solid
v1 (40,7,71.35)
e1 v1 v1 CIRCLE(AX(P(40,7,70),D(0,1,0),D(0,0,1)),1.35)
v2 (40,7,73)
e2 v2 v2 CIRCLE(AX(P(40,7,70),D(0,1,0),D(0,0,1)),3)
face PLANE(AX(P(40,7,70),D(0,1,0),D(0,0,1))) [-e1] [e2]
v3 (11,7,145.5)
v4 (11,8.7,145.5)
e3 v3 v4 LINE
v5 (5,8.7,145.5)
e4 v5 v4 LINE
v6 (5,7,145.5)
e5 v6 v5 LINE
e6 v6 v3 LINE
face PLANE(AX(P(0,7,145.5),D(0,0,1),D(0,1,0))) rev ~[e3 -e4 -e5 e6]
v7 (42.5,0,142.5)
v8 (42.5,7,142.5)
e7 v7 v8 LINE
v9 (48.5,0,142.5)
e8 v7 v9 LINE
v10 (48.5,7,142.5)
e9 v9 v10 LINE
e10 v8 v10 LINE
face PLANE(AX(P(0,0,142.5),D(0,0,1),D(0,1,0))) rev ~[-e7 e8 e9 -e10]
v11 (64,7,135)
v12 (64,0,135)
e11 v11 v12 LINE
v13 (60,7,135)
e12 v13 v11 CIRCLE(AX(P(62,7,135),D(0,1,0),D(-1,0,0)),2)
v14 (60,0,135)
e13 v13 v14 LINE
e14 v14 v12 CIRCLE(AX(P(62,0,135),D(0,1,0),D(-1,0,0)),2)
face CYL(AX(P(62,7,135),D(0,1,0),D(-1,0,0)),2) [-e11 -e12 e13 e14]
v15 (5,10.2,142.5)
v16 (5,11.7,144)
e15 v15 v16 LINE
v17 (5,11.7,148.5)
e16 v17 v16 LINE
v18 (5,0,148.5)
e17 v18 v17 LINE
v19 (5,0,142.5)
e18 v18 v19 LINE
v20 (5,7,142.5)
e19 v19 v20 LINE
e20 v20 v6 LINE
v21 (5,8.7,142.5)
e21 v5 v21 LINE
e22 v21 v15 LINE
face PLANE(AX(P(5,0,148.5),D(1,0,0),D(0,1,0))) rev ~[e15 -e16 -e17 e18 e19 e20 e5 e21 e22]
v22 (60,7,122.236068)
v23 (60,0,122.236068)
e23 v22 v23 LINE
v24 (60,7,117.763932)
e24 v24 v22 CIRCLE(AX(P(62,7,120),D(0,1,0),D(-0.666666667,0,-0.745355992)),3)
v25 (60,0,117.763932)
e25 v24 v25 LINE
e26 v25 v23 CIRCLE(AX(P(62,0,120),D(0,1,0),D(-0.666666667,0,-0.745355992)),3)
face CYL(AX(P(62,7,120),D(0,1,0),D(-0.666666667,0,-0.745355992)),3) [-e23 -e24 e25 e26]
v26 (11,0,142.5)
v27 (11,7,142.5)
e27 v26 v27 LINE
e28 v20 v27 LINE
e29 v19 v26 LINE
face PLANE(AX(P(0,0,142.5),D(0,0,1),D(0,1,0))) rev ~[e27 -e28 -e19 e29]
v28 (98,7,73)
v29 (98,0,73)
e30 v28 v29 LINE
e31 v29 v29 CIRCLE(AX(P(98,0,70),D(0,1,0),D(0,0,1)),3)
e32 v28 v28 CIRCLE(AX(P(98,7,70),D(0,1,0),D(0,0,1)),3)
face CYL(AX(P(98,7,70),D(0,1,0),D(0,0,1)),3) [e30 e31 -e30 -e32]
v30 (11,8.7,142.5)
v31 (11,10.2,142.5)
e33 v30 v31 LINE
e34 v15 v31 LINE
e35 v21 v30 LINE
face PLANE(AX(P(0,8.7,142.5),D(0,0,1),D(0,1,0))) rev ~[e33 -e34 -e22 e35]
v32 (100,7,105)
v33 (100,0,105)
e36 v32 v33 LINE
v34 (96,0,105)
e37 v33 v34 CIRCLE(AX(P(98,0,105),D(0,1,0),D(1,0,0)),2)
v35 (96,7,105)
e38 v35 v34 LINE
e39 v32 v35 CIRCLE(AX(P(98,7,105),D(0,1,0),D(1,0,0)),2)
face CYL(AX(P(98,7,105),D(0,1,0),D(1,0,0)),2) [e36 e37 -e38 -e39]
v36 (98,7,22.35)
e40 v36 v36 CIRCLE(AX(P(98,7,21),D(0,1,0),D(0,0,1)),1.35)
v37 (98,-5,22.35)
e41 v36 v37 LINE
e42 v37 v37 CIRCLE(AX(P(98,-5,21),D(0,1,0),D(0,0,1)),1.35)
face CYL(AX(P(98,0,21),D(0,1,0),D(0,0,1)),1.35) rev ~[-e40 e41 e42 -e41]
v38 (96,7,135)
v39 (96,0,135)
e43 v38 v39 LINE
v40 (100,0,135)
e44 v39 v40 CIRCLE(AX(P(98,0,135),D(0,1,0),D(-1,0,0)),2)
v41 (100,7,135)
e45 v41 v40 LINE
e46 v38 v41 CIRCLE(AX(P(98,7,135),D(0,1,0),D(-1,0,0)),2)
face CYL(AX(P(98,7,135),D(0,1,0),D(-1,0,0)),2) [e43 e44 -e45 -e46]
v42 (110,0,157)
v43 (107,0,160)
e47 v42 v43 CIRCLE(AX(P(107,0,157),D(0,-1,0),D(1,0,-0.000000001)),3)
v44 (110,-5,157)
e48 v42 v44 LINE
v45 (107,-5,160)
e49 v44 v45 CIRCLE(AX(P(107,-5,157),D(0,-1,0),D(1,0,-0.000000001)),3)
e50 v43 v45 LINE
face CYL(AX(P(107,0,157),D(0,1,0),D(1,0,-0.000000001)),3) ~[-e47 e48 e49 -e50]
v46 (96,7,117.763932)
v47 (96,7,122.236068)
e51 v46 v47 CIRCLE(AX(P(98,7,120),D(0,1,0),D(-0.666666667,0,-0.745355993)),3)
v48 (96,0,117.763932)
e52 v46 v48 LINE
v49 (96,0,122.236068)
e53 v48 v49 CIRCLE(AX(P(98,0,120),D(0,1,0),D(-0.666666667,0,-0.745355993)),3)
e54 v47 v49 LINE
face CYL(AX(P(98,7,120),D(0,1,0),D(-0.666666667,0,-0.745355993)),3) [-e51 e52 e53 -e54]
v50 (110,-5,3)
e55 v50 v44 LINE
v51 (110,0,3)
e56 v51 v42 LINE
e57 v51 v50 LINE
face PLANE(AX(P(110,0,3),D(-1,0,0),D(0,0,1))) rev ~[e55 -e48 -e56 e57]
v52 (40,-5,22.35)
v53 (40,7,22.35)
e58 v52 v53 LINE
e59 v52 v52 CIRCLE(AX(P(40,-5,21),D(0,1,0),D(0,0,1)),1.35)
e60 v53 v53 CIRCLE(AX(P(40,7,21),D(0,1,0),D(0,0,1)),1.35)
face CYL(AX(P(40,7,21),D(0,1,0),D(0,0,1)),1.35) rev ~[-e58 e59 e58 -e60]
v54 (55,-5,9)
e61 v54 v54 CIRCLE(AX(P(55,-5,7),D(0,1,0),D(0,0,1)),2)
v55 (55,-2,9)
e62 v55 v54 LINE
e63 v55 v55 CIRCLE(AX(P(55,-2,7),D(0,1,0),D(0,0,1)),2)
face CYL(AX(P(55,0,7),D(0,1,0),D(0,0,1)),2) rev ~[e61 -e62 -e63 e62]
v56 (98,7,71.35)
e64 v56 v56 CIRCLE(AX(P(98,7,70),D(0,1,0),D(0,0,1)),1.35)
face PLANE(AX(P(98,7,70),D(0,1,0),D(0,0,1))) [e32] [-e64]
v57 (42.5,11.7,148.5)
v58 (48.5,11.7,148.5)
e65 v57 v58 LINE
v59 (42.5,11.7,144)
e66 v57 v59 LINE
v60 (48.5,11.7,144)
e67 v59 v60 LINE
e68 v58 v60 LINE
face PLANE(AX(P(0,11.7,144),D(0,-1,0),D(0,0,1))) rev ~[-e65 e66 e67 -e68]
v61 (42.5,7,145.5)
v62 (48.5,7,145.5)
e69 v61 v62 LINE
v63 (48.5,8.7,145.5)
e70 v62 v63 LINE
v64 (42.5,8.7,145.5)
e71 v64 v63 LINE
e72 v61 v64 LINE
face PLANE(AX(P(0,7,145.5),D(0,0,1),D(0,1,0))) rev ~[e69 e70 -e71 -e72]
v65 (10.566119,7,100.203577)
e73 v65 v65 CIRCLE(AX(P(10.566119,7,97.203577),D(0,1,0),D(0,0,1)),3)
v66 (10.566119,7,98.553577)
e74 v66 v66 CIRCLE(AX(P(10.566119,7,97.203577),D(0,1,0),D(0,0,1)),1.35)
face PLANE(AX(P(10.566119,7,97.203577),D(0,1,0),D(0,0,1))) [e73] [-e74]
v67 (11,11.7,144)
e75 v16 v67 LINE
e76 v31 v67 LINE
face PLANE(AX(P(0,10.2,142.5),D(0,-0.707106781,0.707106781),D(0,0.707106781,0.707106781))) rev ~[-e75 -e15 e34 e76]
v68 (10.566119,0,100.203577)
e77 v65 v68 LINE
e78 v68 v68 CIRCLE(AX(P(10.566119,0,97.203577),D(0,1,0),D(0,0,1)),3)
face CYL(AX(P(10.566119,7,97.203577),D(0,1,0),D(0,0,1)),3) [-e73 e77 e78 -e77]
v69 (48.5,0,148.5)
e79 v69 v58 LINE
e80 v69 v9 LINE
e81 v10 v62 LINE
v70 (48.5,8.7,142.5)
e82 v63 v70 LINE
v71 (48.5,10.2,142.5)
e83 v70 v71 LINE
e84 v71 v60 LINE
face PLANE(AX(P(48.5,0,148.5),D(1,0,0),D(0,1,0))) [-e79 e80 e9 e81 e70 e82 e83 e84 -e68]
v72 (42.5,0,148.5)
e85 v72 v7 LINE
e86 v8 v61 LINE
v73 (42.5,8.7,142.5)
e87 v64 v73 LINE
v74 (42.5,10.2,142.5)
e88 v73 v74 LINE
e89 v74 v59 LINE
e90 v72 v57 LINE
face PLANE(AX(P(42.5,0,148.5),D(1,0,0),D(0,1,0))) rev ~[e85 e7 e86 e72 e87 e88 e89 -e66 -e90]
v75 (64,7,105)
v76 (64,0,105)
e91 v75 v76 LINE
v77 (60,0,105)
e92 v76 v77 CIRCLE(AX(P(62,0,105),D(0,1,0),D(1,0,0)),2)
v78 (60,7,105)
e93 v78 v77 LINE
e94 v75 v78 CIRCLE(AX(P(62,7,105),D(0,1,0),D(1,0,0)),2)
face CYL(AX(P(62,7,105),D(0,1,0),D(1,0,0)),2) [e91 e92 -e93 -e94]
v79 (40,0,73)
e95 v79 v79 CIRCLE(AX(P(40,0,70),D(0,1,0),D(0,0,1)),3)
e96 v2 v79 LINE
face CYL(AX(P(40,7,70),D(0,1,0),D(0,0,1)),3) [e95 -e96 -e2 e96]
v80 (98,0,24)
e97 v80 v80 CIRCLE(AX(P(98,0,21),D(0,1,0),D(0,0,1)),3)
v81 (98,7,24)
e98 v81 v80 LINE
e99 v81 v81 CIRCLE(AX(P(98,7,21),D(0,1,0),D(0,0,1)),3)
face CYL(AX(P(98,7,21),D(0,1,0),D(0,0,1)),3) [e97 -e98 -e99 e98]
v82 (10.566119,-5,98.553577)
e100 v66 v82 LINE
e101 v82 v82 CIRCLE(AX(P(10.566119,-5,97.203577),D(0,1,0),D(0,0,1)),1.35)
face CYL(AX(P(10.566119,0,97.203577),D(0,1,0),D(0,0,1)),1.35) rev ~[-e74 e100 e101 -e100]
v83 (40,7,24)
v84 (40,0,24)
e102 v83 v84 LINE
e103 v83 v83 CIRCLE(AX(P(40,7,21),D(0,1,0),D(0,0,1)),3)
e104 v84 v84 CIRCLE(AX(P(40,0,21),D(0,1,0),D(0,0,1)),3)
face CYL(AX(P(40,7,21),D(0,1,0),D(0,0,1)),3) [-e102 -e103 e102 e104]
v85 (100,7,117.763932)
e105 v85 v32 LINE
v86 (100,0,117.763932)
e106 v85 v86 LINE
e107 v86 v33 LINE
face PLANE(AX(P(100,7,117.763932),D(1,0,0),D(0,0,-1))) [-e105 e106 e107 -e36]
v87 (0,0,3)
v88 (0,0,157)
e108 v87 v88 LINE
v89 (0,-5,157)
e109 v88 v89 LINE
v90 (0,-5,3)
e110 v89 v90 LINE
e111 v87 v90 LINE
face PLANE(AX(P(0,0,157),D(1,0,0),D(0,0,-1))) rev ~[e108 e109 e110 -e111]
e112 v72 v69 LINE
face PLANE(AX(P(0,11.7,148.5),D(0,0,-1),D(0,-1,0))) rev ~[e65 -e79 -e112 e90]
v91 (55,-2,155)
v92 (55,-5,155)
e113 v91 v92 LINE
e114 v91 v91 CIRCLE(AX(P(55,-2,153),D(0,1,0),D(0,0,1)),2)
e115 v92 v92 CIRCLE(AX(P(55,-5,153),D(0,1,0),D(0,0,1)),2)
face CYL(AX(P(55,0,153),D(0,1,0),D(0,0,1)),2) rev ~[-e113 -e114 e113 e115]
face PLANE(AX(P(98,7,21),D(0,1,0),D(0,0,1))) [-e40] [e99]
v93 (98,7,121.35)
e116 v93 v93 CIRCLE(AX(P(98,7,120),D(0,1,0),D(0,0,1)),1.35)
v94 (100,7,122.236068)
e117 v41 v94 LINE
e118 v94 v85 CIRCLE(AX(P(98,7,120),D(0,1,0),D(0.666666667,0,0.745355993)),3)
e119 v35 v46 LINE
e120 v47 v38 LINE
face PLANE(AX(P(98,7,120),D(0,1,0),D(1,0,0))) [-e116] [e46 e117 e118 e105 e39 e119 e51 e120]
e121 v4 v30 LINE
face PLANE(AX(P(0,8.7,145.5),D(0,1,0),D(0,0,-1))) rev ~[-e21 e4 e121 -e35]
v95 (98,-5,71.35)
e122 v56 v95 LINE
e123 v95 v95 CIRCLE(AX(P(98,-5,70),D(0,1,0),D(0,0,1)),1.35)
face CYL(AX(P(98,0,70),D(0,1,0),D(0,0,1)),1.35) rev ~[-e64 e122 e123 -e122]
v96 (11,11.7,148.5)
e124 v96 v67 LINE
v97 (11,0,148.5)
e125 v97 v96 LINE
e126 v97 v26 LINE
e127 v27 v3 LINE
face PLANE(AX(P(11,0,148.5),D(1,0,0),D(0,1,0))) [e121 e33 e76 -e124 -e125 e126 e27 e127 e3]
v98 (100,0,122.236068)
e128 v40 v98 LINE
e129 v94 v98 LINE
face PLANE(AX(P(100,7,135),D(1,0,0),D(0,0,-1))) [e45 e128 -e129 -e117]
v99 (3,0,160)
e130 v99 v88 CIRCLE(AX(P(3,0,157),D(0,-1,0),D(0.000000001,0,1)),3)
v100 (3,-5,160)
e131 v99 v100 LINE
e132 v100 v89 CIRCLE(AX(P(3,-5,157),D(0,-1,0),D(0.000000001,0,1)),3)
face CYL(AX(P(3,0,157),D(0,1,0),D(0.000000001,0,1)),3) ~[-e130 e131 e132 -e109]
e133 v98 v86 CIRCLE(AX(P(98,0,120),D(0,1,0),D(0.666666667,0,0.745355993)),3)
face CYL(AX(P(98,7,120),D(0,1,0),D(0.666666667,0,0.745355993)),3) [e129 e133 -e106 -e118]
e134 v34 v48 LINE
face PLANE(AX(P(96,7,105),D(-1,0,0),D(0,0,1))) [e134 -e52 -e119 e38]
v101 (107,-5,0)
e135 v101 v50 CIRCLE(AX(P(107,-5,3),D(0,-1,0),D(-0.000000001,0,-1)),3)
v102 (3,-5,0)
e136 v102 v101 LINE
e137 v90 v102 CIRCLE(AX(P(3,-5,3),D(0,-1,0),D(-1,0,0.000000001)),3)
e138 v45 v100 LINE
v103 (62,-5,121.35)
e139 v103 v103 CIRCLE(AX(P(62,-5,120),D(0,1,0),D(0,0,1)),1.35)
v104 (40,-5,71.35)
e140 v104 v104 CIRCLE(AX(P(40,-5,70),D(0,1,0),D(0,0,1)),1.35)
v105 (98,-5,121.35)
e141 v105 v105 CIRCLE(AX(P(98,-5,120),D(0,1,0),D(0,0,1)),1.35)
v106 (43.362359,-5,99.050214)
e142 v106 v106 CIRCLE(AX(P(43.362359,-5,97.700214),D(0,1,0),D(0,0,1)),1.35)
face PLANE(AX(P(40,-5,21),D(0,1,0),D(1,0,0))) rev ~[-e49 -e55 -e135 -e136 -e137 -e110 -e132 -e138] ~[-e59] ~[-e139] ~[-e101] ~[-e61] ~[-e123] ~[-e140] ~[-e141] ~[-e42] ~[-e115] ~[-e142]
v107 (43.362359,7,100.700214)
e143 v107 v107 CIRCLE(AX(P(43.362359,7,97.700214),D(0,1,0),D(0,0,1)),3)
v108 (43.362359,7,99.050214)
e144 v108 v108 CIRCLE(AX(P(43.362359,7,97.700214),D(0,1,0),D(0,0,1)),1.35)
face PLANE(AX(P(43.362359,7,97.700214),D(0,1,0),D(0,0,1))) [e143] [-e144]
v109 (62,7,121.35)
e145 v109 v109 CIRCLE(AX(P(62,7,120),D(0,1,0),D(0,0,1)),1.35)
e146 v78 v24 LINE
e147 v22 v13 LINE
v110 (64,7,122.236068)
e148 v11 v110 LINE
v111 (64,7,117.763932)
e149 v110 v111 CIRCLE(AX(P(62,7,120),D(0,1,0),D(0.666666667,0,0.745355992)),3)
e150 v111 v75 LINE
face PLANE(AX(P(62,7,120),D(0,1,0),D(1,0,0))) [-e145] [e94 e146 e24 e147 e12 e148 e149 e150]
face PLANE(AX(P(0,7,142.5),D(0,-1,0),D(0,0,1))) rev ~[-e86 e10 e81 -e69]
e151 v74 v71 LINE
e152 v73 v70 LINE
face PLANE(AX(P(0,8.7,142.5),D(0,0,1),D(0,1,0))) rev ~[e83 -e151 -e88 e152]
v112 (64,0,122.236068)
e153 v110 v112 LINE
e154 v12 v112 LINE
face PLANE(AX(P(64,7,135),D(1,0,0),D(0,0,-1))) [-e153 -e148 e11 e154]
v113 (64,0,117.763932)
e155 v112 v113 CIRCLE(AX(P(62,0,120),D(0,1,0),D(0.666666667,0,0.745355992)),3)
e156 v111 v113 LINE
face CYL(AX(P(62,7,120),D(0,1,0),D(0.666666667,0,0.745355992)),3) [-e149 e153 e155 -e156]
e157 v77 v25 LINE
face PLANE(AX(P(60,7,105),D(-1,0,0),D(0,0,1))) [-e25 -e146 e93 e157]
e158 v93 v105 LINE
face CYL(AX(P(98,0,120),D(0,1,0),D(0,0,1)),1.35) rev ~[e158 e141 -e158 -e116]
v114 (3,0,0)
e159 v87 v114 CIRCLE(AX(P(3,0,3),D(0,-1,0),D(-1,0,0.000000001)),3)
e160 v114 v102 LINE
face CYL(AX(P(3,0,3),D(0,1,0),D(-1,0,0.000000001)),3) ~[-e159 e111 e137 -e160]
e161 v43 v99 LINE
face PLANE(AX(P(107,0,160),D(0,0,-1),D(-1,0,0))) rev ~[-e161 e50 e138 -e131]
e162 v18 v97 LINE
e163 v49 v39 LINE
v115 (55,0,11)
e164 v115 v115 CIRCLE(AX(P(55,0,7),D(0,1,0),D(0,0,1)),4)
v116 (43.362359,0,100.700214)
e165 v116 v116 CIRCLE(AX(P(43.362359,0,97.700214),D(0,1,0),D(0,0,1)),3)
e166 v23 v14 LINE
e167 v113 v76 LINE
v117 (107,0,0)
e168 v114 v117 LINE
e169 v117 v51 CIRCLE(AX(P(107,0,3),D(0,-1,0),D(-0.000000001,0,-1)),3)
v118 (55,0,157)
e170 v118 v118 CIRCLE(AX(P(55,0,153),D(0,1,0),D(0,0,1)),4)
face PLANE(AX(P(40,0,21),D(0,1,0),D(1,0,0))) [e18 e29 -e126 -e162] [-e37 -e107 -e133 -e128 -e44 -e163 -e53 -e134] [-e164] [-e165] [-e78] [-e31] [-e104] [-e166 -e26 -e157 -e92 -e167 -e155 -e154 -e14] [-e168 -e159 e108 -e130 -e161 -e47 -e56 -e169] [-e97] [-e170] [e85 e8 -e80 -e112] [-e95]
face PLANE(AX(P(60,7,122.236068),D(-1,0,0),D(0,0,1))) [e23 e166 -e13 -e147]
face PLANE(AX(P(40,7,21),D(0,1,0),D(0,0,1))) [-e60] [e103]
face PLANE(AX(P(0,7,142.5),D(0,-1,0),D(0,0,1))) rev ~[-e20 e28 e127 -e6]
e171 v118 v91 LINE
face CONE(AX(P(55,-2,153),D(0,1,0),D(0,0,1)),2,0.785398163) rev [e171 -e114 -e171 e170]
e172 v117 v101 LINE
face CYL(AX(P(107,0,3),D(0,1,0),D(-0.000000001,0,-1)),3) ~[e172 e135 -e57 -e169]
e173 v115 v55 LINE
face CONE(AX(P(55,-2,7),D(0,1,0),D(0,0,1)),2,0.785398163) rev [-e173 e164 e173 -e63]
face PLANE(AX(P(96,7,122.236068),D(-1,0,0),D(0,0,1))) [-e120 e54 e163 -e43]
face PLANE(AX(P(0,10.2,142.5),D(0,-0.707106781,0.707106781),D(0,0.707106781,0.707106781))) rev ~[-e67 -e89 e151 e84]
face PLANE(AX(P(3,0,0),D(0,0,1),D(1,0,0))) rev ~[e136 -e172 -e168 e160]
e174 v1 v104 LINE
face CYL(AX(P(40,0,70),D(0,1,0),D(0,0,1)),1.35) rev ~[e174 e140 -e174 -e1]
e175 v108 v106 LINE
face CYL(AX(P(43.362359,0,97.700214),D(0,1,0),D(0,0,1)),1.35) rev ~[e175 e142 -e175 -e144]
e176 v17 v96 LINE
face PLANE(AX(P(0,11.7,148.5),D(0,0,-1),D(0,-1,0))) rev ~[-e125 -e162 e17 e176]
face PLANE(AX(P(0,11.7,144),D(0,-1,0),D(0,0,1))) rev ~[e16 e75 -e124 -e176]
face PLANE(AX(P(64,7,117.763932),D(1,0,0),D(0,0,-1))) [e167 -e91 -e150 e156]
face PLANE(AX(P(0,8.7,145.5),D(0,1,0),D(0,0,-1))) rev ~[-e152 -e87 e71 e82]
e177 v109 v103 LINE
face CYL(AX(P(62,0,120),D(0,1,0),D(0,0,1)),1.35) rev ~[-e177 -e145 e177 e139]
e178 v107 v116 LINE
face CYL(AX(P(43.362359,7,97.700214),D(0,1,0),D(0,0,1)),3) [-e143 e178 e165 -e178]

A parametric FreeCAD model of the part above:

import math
import FreeCAD as App
import Part
import Sketcher
from FreeCAD import Vector
Q = App.Units.Quantity


def edges_at(feature, points):
    """Names of the edges that pass closest to the given points."""
    edges = feature.Shape.Edges
    near = lambda p: min(range(len(edges)), key=lambda i: edges[i].distToShape(Part.Vertex(*p))[0])
    return sorted({f"Edge{near(p) + 1}" for p in points})

doc = App.newDocument("Part")
params = doc.addObject("Spreadsheet::Sheet", "Params")
for row, (alias, value) in enumerate([
    ("sketch1_diameter", "4 mm"),
    ("sketch1_radius", "3 mm"),
    ("sketch1_diameter2", "2.7 mm"),
    ("sketch1_width", "104 mm"),
    ("sketch1_height", "154 mm"),
    ("pad1_length", "5 mm"),
    ("sketch2_diameter", "6 mm"),
    ("sketch2_radius", "2 mm"),
    ("sketch2_diameter2", "2.7 mm"),
    ("pad2_length", "7 mm"),
    ("chamfer_size", "2 mm"),
    ("chamfer2_size", "2 mm"),
    ("sketch3_width", "7 mm"),
    ("sketch3_height", "6 mm"),
    ("sketch3_height2", "3 mm"),
    ("sketch3_width2", "11.7 mm"),
    ("sketch3_width3", "1.5 mm"),
    ("pad3_length", "50 mm"),
    ("sketch4_width", "5 mm"),
    ("sketch4_width2", "31.5 mm"),
    ("sketch4_width3", "1.5 mm"),
    ("sketch4_height", "11.7 mm"),
    ("pocket1_length", "12 mm"),
], start=1):
    params.set(f"A{row}", alias)
    params.set(f"B{row}", "=" + value)
    params.setAlias(f"B{row}", alias)

body = doc.addObject("PartDesign::Body", "Body")

# Sketch on XZ plane
sketch1 = body.newObject("Sketcher::SketchObject", "Sketch")
sketch1.AttachmentSupport = (doc.getObject("XZ_Plane"), [""])
sketch1.MapMode = "FlatFace"
sketch1.addGeometry([
    Part.LineSegment(Vector(107, 0, 0), Vector(3, 0, 0)),  # 0
    Part.ArcOfCircle(Part.Circle(Vector(3, 3, 0), Vector(0, 0, 1), 3), math.radians(180), math.radians(270)),  # 1
    Part.LineSegment(Vector(0, 3, 0), Vector(0, 157, 0)),  # 2
    Part.ArcOfCircle(Part.Circle(Vector(3, 157, 0), Vector(0, 0, 1), 3), math.radians(90), math.radians(180)),  # 3
    Part.LineSegment(Vector(3, 160, 0), Vector(107, 160, 0)),  # 4
    Part.ArcOfCircle(Part.Circle(Vector(107, 157, 0), Vector(0, 0, 1), 3), math.radians(0), math.radians(90)),  # 5
    Part.LineSegment(Vector(110, 157, 0), Vector(110, 3, 0)),  # 6
    Part.ArcOfCircle(Part.Circle(Vector(107, 3, 0), Vector(0, 0, 1), 3), math.radians(-90), math.radians(0)),  # 7
    Part.Circle(Vector(55, 153, 0), Vector(0, 0, 1), 2),  # 8
    Part.Circle(Vector(55, 7, 0), Vector(0, 0, 1), 2),  # 9
    Part.Circle(Vector(98, 120, 0), Vector(0, 0, 1), 1.4),  # 10
    Part.Circle(Vector(62, 120, 0), Vector(0, 0, 1), 1.4),  # 11
    Part.Circle(Vector(43.4, 97.7, 0), Vector(0, 0, 1), 1.4),  # 12
    Part.Circle(Vector(10.6, 97.2, 0), Vector(0, 0, 1), 1.4),  # 13
    Part.Circle(Vector(98, 70, 0), Vector(0, 0, 1), 1.4),  # 14
    Part.Circle(Vector(98, 21, 0), Vector(0, 0, 1), 1.4),  # 15
    Part.Circle(Vector(40, 70, 0), Vector(0, 0, 1), 1.4),  # 16
    Part.Circle(Vector(40, 21, 0), Vector(0, 0, 1), 1.4),  # 17
], False)
sketch1.addConstraint([
    Sketcher.Constraint("Tangent", 0, 2, 1, 2),
    Sketcher.Constraint("Tangent", 1, 1, 2, 1),
    Sketcher.Constraint("Tangent", 2, 2, 3, 2),
    Sketcher.Constraint("Tangent", 3, 1, 4, 1),
    Sketcher.Constraint("Tangent", 4, 2, 5, 2),
    Sketcher.Constraint("Tangent", 5, 1, 6, 1),
    Sketcher.Constraint("Tangent", 6, 2, 7, 2),
    Sketcher.Constraint("Tangent", 7, 1, 0, 1),
    Sketcher.Constraint("Horizontal", 0),
    Sketcher.Constraint("Vertical", 2),
    Sketcher.Constraint("Horizontal", 4),
    Sketcher.Constraint("Vertical", 6),
    Sketcher.Constraint("Equal", 1, 3),
    Sketcher.Constraint("Equal", 3, 5),
    Sketcher.Constraint("Equal", 5, 7),
    Sketcher.Constraint("Equal", 8, 9),
    Sketcher.Constraint("Equal", 10, 11),
    Sketcher.Constraint("Equal", 11, 12),
    Sketcher.Constraint("Equal", 12, 13),
    Sketcher.Constraint("Equal", 13, 14),
    Sketcher.Constraint("Equal", 14, 15),
    Sketcher.Constraint("Equal", 15, 16),
    Sketcher.Constraint("Equal", 16, 17),
    Sketcher.Constraint("PointOnObject", 0, 2, -1),
    Sketcher.Constraint("PointOnObject", 1, 1, -2),
    Sketcher.Constraint("Horizontal", 10, 3, 11, 3),
    Sketcher.Constraint("Horizontal", 14, 3, 16, 3),
    Sketcher.Constraint("Horizontal", 15, 3, 17, 3),
    Sketcher.Constraint("Vertical", 8, 3, 9, 3),
    Sketcher.Constraint("Vertical", 10, 3, 14, 3),
    Sketcher.Constraint("Vertical", 14, 3, 15, 3),
    Sketcher.Constraint("Vertical", 16, 3, 17, 3),
    Sketcher.Constraint("Diameter", 8, 4.0),
    Sketcher.Constraint("Radius", 1, 3.0),
    Sketcher.Constraint("Diameter", 10, 2.7),
    Sketcher.Constraint("DistanceX", 0, 2, 0, 1, 104.0),
    Sketcher.Constraint("DistanceY", 2, 1, 2, 2, 154.0),
    Sketcher.Constraint("DistanceX", -1, 1, 8, 3, 55.0),
    Sketcher.Constraint("DistanceY", -1, 1, 8, 3, 153.0),
    Sketcher.Constraint("DistanceY", -1, 1, 9, 3, 7.0),
    Sketcher.Constraint("DistanceX", -1, 1, 10, 3, 98.0),
    Sketcher.Constraint("DistanceY", -1, 1, 10, 3, 120.0),
    Sketcher.Constraint("DistanceX", -1, 1, 11, 3, 62.0),
    Sketcher.Constraint("DistanceY", -1, 1, 14, 3, 70.0),
    Sketcher.Constraint("DistanceY", -1, 1, 15, 3, 21.0),
    Sketcher.Constraint("DistanceX", -1, 1, 16, 3, 40.0),
    Sketcher.Constraint("DistanceX", -1, 1, 12, 3, 43.362359),
    Sketcher.Constraint("DistanceX", -1, 1, 13, 3, 10.566119),
    Sketcher.Constraint("DistanceY", -1, 1, 12, 3, 97.700214),
    Sketcher.Constraint("DistanceY", -1, 1, 13, 3, 97.203577),
])
sketch1.setExpression("Constraints[32]", "Params.sketch1_diameter")
sketch1.setExpression("Constraints[33]", "Params.sketch1_radius")
sketch1.setExpression("Constraints[34]", "Params.sketch1_diameter2")
sketch1.setExpression("Constraints[35]", "Params.sketch1_width")
sketch1.setExpression("Constraints[36]", "Params.sketch1_height")
pad1 = body.newObject("PartDesign::Pad", "Pad")
pad1.Profile = sketch1
pad1.setExpression("Length", "Params.pad1_length")

# Sketch on XZ plane
sketch2 = body.newObject("Sketcher::SketchObject", "Sketch001")
sketch2.AttachmentSupport = (doc.getObject("XZ_Plane"), [""])
sketch2.MapMode = "FlatFace"
sketch2.AttachmentOffset = App.Placement(Vector(0, 0, -7), App.Rotation())
sketch2.addGeometry([
    Part.Circle(Vector(40, 21, 0), Vector(0, 0, 1), 3),  # 0
    Part.Circle(Vector(40, 21, 0), Vector(0, 0, 1), 1.4),  # 1
    Part.Circle(Vector(98, 21, 0), Vector(0, 0, 1), 3),  # 2
    Part.Circle(Vector(98, 21, 0), Vector(0, 0, 1), 1.4),  # 3
    Part.Circle(Vector(98, 70, 0), Vector(0, 0, 1), 3),  # 4
    Part.Circle(Vector(98, 70, 0), Vector(0, 0, 1), 1.4),  # 5
    Part.Circle(Vector(40, 70, 0), Vector(0, 0, 1), 3),  # 6
    Part.Circle(Vector(40, 70, 0), Vector(0, 0, 1), 1.4),  # 7
    Part.Circle(Vector(43.4, 97.7, 0), Vector(0, 0, 1), 3),  # 8
    Part.Circle(Vector(43.4, 97.7, 0), Vector(0, 0, 1), 1.4),  # 9
    Part.Circle(Vector(10.6, 97.2, 0), Vector(0, 0, 1), 3),  # 10
    Part.Circle(Vector(10.6, 97.2, 0), Vector(0, 0, 1), 1.4),  # 11
    Part.LineSegment(Vector(60, 105, 0), Vector(60, 117.8, 0)),  # 12
    Part.ArcOfCircle(Part.Circle(Vector(62, 120, 0), Vector(0, 0, 1), 3), math.radians(132), math.radians(228)),  # 13
    Part.LineSegment(Vector(60, 122.2, 0), Vector(60, 135, 0)),  # 14
    Part.ArcOfCircle(Part.Circle(Vector(62, 135, 0), Vector(0, 0, 1), 2), math.radians(0), math.radians(180)),  # 15
    Part.LineSegment(Vector(64, 135, 0), Vector(64, 122.2, 0)),  # 16
    Part.ArcOfCircle(Part.Circle(Vector(62, 120, 0), Vector(0, 0, 1), 3), math.radians(-48), math.radians(48)),  # 17
    Part.LineSegment(Vector(64, 117.8, 0), Vector(64, 105, 0)),  # 18
    Part.ArcOfCircle(Part.Circle(Vector(62, 105, 0), Vector(0, 0, 1), 2), math.radians(180), math.radians(360)),  # 19
    Part.Circle(Vector(62, 120, 0), Vector(0, 0, 1), 1.4),  # 20
    Part.LineSegment(Vector(96, 105, 0), Vector(96, 117.8, 0)),  # 21
    Part.ArcOfCircle(Part.Circle(Vector(98, 120, 0), Vector(0, 0, 1), 3), math.radians(132), math.radians(228)),  # 22
    Part.LineSegment(Vector(96, 122.2, 0), Vector(96, 135, 0)),  # 23
    Part.ArcOfCircle(Part.Circle(Vector(98, 135, 0), Vector(0, 0, 1), 2), math.radians(0), math.radians(180)),  # 24
    Part.LineSegment(Vector(100, 135, 0), Vector(100, 122.2, 0)),  # 25
    Part.ArcOfCircle(Part.Circle(Vector(98, 120, 0), Vector(0, 0, 1), 3), math.radians(-48), math.radians(48)),  # 26
    Part.LineSegment(Vector(100, 117.8, 0), Vector(100, 105, 0)),  # 27
    Part.ArcOfCircle(Part.Circle(Vector(98, 105, 0), Vector(0, 0, 1), 2), math.radians(180), math.radians(360)),  # 28
    Part.Circle(Vector(98, 120, 0), Vector(0, 0, 1), 1.4),  # 29
], False)
sketch2.addConstraint([
    Sketcher.Constraint("Coincident", 12, 2, 13, 2),
    Sketcher.Constraint("Coincident", 13, 1, 14, 1),
    Sketcher.Constraint("Tangent", 14, 2, 15, 2),
    Sketcher.Constraint("Tangent", 15, 1, 16, 1),
    Sketcher.Constraint("Coincident", 16, 2, 17, 2),
    Sketcher.Constraint("Coincident", 17, 1, 18, 1),
    Sketcher.Constraint("Tangent", 18, 2, 19, 2),
    Sketcher.Constraint("Tangent", 19, 1, 12, 1),
    Sketcher.Constraint("Coincident", 21, 2, 22, 2),
    Sketcher.Constraint("Coincident", 22, 1, 23, 1),
    Sketcher.Constraint("Tangent", 23, 2, 24, 2),
    Sketcher.Constraint("Tangent", 24, 1, 25, 1),
    Sketcher.Constraint("Coincident", 25, 2, 26, 2),
    Sketcher.Constraint("Coincident", 26, 1, 27, 1),
    Sketcher.Constraint("Tangent", 27, 2, 28, 2),
    Sketcher.Constraint("Tangent", 28, 1, 21, 1),
    Sketcher.Constraint("Vertical", 12),
    Sketcher.Constraint("Vertical", 14),
    Sketcher.Constraint("Vertical", 16),
    Sketcher.Constraint("Vertical", 18),
    Sketcher.Constraint("Vertical", 21),
    Sketcher.Constraint("Vertical", 23),
    Sketcher.Constraint("Vertical", 25),
    Sketcher.Constraint("Vertical", 27),
    Sketcher.Constraint("Coincident", 1, 3, 0, 3),
    Sketcher.Constraint("Coincident", 3, 3, 2, 3),
    Sketcher.Constraint("Coincident", 5, 3, 4, 3),
    Sketcher.Constraint("Coincident", 7, 3, 6, 3),
    Sketcher.Constraint("Coincident", 9, 3, 8, 3),
    Sketcher.Constraint("Coincident", 11, 3, 10, 3),
    Sketcher.Constraint("Coincident", 17, 3, 13, 3),
    Sketcher.Constraint("Coincident", 20, 3, 13, 3),
    Sketcher.Constraint("Coincident", 26, 3, 22, 3),
    Sketcher.Constraint("Coincident", 29, 3, 22, 3),
    Sketcher.Constraint("Equal", 0, 2),
    Sketcher.Constraint("Equal", 1, 3),
    Sketcher.Constraint("Equal", 2, 4),
    Sketcher.Constraint("Equal", 3, 5),
    Sketcher.Constraint("Equal", 4, 6),
    Sketcher.Constraint("Equal", 5, 7),
    Sketcher.Constraint("Equal", 6, 8),
    Sketcher.Constraint("Equal", 7, 9),
    Sketcher.Constraint("Equal", 8, 10),
    Sketcher.Constraint("Equal", 9, 11),
    Sketcher.Constraint("Equal", 10, 13),
    Sketcher.Constraint("Equal", 13, 17),
    Sketcher.Constraint("Equal", 15, 19),
    Sketcher.Constraint("Equal", 11, 20),
    Sketcher.Constraint("Equal", 17, 22),
    Sketcher.Constraint("Equal", 19, 24),
    Sketcher.Constraint("Equal", 22, 26),
    Sketcher.Constraint("Equal", 24, 28),
    Sketcher.Constraint("Equal", 20, 29),
    Sketcher.Constraint("Horizontal", 1, 3, 2, 3),
    Sketcher.Constraint("Horizontal", 5, 3, 6, 3),
    Sketcher.Constraint("Horizontal", 20, 3, 22, 3),
    Sketcher.Constraint("Horizontal", 15, 3, 24, 3),
    Sketcher.Constraint("Horizontal", 19, 3, 28, 3),
    Sketcher.Constraint("Horizontal", 13, 1, 16, 2),
    Sketcher.Constraint("Horizontal", 12, 2, 17, 1),
    Sketcher.Constraint("Horizontal", 17, 1, 21, 2),
    Sketcher.Constraint("Horizontal", 16, 2, 22, 1),
    Sketcher.Constraint("Vertical", 3, 3, 4, 3),
    Sketcher.Constraint("Vertical", 1, 3, 6, 3),
    Sketcher.Constraint("Vertical", 5, 3, 22, 3),
    Sketcher.Constraint("Equal", 12, 14),
    Sketcher.Constraint("Diameter", 0, 6.0),
    Sketcher.Constraint("Radius", 15, 2.0),
    Sketcher.Constraint("Diameter", 1, 2.7),
    Sketcher.Constraint("DistanceX", -1, 1, 0, 3, 40.0),
    Sketcher.Constraint("DistanceY", -1, 1, 0, 3, 21.0),
    Sketcher.Constraint("DistanceX", -1, 1, 2, 3, 98.0),
    Sketcher.Constraint("DistanceY", -1, 1, 4, 3, 70.0),
    Sketcher.Constraint("DistanceX", -1, 1, 13, 3, 62.0),
    Sketcher.Constraint("DistanceY", -1, 1, 13, 3, 120.0),
    Sketcher.Constraint("DistanceY", -1, 1, 15, 3, 135.0),
    Sketcher.Constraint("DistanceX", -1, 1, 8, 3, 43.362359),
    Sketcher.Constraint("DistanceX", -1, 1, 10, 3, 10.566119),
    Sketcher.Constraint("DistanceY", -1, 1, 8, 3, 97.700214),
    Sketcher.Constraint("DistanceY", -1, 1, 10, 3, 97.203577),
])
sketch2.setExpression("Constraints[66]", "Params.sketch2_diameter")
sketch2.setExpression("Constraints[67]", "Params.sketch2_radius")
sketch2.setExpression("Constraints[68]", "Params.sketch2_diameter2")
pad2 = body.newObject("PartDesign::Pad", "Pad001")
pad2.Profile = sketch2
pad2.setExpression("Length", "Params.pad2_length")
doc.recompute()

chamfer = body.newObject("PartDesign::Chamfer", "Chamfer")
chamfer.Base = (pad2, edges_at(pad2, [(55, 0, 5)]))
chamfer.setExpression("Size", "Params.chamfer_size")
doc.recompute()

chamfer2 = body.newObject("PartDesign::Chamfer", "Chamfer001")
chamfer2.Base = (chamfer, edges_at(chamfer, [(55, 0, 151)]))
chamfer2.setExpression("Size", "Params.chamfer2_size")

# Sketch on YZ plane
sketch3 = body.newObject("Sketcher::SketchObject", "Sketch002")
sketch3.AttachmentSupport = (doc.getObject("YZ_Plane"), [""])
sketch3.MapMode = "FlatFace"
sketch3.addGeometry([
    Part.LineSegment(Vector(7, 142.5, 0), Vector(0, 142.5, 0)),  # 0
    Part.LineSegment(Vector(0, 142.5, 0), Vector(0, 148.5, 0)),  # 1
    Part.LineSegment(Vector(0, 148.5, 0), Vector(11.7, 148.5, 0)),  # 2
    Part.LineSegment(Vector(11.7, 148.5, 0), Vector(11.7, 144, 0)),  # 3
    Part.LineSegment(Vector(11.7, 144, 0), Vector(10.2, 142.5, 0)),  # 4
    Part.LineSegment(Vector(10.2, 142.5, 0), Vector(8.7, 142.5, 0)),  # 5
    Part.LineSegment(Vector(8.7, 142.5, 0), Vector(8.7, 145.5, 0)),  # 6
    Part.LineSegment(Vector(8.7, 145.5, 0), Vector(7, 145.5, 0)),  # 7
    Part.LineSegment(Vector(7, 145.5, 0), Vector(7, 142.5, 0)),  # 8
], False)
sketch3.addConstraint([
    Sketcher.Constraint("Coincident", 0, 2, 1, 1),
    Sketcher.Constraint("Coincident", 1, 2, 2, 1),
    Sketcher.Constraint("Coincident", 2, 2, 3, 1),
    Sketcher.Constraint("Coincident", 3, 2, 4, 1),
    Sketcher.Constraint("Coincident", 4, 2, 5, 1),
    Sketcher.Constraint("Coincident", 5, 2, 6, 1),
    Sketcher.Constraint("Coincident", 6, 2, 7, 1),
    Sketcher.Constraint("Coincident", 7, 2, 8, 1),
    Sketcher.Constraint("Coincident", 8, 2, 0, 1),
    Sketcher.Constraint("Horizontal", 0),
    Sketcher.Constraint("Vertical", 1),
    Sketcher.Constraint("Horizontal", 2),
    Sketcher.Constraint("Vertical", 3),
    Sketcher.Constraint("Horizontal", 5),
    Sketcher.Constraint("Vertical", 6),
    Sketcher.Constraint("Horizontal", 7),
    Sketcher.Constraint("Vertical", 8),
    Sketcher.Constraint("PointOnObject", 0, 2, -2),
    Sketcher.Constraint("Horizontal", 0, 2, 4, 2),
    Sketcher.Constraint("DistanceX", 0, 2, 0, 1, 7.0),
    Sketcher.Constraint("DistanceY", 1, 1, 1, 2, 6.0),
    Sketcher.Constraint("DistanceY", 6, 1, 6, 2, 3.0),
    Sketcher.Constraint("Angle", 4, Q("-135 deg")),
    Sketcher.Constraint("DistanceX", 2, 1, 2, 2, 11.7),
    Sketcher.Constraint("DistanceX", 5, 2, 5, 1, 1.5),
    Sketcher.Constraint("DistanceX", 7, 2, 7, 1, 1.7),
    Sketcher.Constraint("DistanceY", -1, 1, 3, 2, 144.0),
])
sketch3.setExpression("Constraints[19]", "Params.sketch3_width")
sketch3.setExpression("Constraints[20]", "Params.sketch3_height")
sketch3.setExpression("Constraints[21]", "Params.sketch3_height2")
sketch3.setExpression("Constraints[23]", "Params.sketch3_width2")
sketch3.setExpression("Constraints[24]", "Params.sketch3_width3")
pad3 = body.newObject("PartDesign::Pad", "Pad002")
pad3.Profile = sketch3
pad3.setExpression("Length", "Params.pad3_length")

# Sketch on XY plane
sketch4 = body.newObject("Sketcher::SketchObject", "Sketch003")
sketch4.AttachmentSupport = (doc.getObject("XY_Plane"), [""])
sketch4.MapMode = "FlatFace"
sketch4.AttachmentOffset = App.Placement(Vector(0, 0, 148.5), App.Rotation())
sketch4.addGeometry([
    Part.LineSegment(Vector(0, 11.7, 0), Vector(0, 0, 0)),  # 0
    Part.LineSegment(Vector(0, 0, 0), Vector(5, 0, 0)),  # 1
    Part.LineSegment(Vector(5, 0, 0), Vector(5, 11.7, 0)),  # 2
    Part.LineSegment(Vector(5, 11.7, 0), Vector(0, 11.7, 0)),  # 3
    Part.LineSegment(Vector(11, 11.7, 0), Vector(11, 0, 0)),  # 4
    Part.LineSegment(Vector(11, 0, 0), Vector(42.5, 0, 0)),  # 5
    Part.LineSegment(Vector(42.5, 0, 0), Vector(42.5, 11.7, 0)),  # 6
    Part.LineSegment(Vector(42.5, 11.7, 0), Vector(11, 11.7, 0)),  # 7
    Part.LineSegment(Vector(48.5, 11.7, 0), Vector(48.5, 0, 0)),  # 8
    Part.LineSegment(Vector(48.5, 0, 0), Vector(50, 0, 0)),  # 9
    Part.LineSegment(Vector(50, 0, 0), Vector(50, 11.7, 0)),  # 10
    Part.LineSegment(Vector(50, 11.7, 0), Vector(48.5, 11.7, 0)),  # 11
], False)
sketch4.addConstraint([
    Sketcher.Constraint("Coincident", 0, 2, 1, 1),
    Sketcher.Constraint("Coincident", 1, 2, 2, 1),
    Sketcher.Constraint("Coincident", 2, 2, 3, 1),
    Sketcher.Constraint("Coincident", 3, 2, 0, 1),
    Sketcher.Constraint("Coincident", 4, 2, 5, 1),
    Sketcher.Constraint("Coincident", 5, 2, 6, 1),
    Sketcher.Constraint("Coincident", 6, 2, 7, 1),
    Sketcher.Constraint("Coincident", 7, 2, 4, 1),
    Sketcher.Constraint("Coincident", 8, 2, 9, 1),
    Sketcher.Constraint("Coincident", 9, 2, 10, 1),
    Sketcher.Constraint("Coincident", 10, 2, 11, 1),
    Sketcher.Constraint("Coincident", 11, 2, 8, 1),
    Sketcher.Constraint("Vertical", 0),
    Sketcher.Constraint("Horizontal", 1),
    Sketcher.Constraint("Vertical", 2),
    Sketcher.Constraint("Horizontal", 3),
    Sketcher.Constraint("Vertical", 4),
    Sketcher.Constraint("Horizontal", 5),
    Sketcher.Constraint("Vertical", 6),
    Sketcher.Constraint("Horizontal", 7),
    Sketcher.Constraint("Vertical", 8),
    Sketcher.Constraint("Horizontal", 9),
    Sketcher.Constraint("Vertical", 10),
    Sketcher.Constraint("Horizontal", 11),
    Sketcher.Constraint("Coincident", 0, 2, -1, 1),
    Sketcher.Constraint("PointOnObject", 4, 2, -1),
    Sketcher.Constraint("PointOnObject", 8, 2, -1),
    Sketcher.Constraint("Horizontal", 3, 2, 6, 2),
    Sketcher.Constraint("Horizontal", 7, 2, 10, 2),
    Sketcher.Constraint("DistanceX", 1, 1, 1, 2, 5.0),
    Sketcher.Constraint("DistanceX", 5, 1, 5, 2, 31.5),
    Sketcher.Constraint("DistanceX", 9, 1, 9, 2, 1.5),
    Sketcher.Constraint("DistanceY", 0, 2, 0, 1, 11.7),
    Sketcher.Constraint("DistanceX", -1, 1, 4, 2, 11.0),
    Sketcher.Constraint("DistanceX", -1, 1, 9, 2, 50.0),
])
sketch4.setExpression("Constraints[29]", "Params.sketch4_width")
sketch4.setExpression("Constraints[30]", "Params.sketch4_width2")
sketch4.setExpression("Constraints[31]", "Params.sketch4_width3")
sketch4.setExpression("Constraints[32]", "Params.sketch4_height")
pocket1 = body.newObject("PartDesign::Pocket", "Pocket")
pocket1.Profile = sketch4
pocket1.setExpression("Length", "Params.pocket1_length")

doc.recompute()
